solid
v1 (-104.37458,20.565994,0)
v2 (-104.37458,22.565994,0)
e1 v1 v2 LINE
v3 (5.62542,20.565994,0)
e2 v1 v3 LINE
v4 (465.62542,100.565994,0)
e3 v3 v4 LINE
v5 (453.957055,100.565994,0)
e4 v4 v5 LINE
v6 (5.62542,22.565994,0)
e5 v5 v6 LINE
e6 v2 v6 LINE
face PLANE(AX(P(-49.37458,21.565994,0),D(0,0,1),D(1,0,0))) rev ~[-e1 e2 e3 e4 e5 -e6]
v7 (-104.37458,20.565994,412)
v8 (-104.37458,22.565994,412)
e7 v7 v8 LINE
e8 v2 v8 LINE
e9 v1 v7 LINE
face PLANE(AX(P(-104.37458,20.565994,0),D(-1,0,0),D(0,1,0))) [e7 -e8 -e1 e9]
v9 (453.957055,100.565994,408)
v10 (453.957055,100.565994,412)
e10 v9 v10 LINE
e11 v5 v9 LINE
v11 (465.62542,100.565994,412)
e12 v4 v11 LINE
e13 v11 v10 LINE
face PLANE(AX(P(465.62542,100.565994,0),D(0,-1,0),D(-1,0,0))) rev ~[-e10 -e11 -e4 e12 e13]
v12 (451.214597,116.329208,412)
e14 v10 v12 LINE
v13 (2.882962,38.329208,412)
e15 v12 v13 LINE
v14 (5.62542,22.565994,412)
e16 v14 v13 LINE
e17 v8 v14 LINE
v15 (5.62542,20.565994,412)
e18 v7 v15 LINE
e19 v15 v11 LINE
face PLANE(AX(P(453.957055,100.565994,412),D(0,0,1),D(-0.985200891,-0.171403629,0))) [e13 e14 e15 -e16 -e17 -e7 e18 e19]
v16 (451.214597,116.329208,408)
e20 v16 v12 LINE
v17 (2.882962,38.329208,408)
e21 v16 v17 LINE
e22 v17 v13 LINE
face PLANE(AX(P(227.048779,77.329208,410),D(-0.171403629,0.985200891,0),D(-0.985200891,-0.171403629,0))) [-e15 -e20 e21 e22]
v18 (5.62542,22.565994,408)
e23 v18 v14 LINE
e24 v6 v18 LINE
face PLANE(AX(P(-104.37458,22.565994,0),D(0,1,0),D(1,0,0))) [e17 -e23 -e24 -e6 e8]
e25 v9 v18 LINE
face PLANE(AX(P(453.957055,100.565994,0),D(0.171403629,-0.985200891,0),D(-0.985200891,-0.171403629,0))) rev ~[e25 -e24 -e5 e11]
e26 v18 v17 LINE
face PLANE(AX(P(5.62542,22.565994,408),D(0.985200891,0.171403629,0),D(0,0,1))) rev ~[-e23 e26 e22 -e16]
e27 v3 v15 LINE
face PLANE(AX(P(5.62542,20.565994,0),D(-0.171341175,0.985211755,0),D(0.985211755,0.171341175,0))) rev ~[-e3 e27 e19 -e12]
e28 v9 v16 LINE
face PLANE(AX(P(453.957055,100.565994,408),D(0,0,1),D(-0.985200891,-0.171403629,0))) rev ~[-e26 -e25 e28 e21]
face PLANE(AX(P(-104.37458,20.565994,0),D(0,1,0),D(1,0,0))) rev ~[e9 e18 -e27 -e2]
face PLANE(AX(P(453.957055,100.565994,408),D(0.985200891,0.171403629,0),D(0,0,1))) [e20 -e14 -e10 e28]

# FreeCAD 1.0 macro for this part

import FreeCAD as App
import Part
import Sketcher
Q = App.Units.Quantity


def add_polygon(sketch, points):
    """Adds a closed chain of lines whose ends are joined by coincident constraints."""
    first, n = sketch.GeometryCount, len(points)
    for a, b in zip(points, points[1:] + points[:1]):
        sketch.addGeometry(Part.LineSegment(App.Vector(*a, 0), App.Vector(*b, 0)), False)
    for i in range(n):
        sketch.addConstraint(Sketcher.Constraint("Coincident", first + i, 2, first + (i + 1) % n, 1))

doc = App.newDocument("Part")
body = doc.addObject("PartDesign::Body", "Body")

# Sketch on XY plane
sketch1 = body.newObject("Sketcher::SketchObject", "Sketch")
sketch1.AttachmentSupport = (doc.getObject("XY_Plane"), [""])
sketch1.MapMode = "FlatFace"
add_polygon(sketch1, [(-104.37458, 22.565994), (-104.37458, 20.565994), (5.62542, 20.565994), (465.62542, 100.565994), (453.957055, 100.565994), (5.62542, 22.565994)])  # lines 0-5
sketch1.addConstraint(Sketcher.Constraint("Vertical", 0))
sketch1.addConstraint(Sketcher.Constraint("Horizontal", 1))
sketch1.addConstraint(Sketcher.Constraint("Horizontal", 3))
sketch1.addConstraint(Sketcher.Constraint("Horizontal", 5))
sketch1.addConstraint(Sketcher.Constraint("Vertical", 1, 2, 4, 2))
sketch1.addConstraint(Sketcher.Constraint("DistanceX", 1, 1, 1, 2, Q("110 mm")))
sketch1.addConstraint(Sketcher.Constraint("DistanceY", 0, 2, 0, 1, Q("2 mm")))
sketch1.addConstraint(Sketcher.Constraint("DistanceX", 1, 2, 2, 2, Q("460 mm")))
sketch1.addConstraint(Sketcher.Constraint("DistanceY", 1, 2, 2, 2, Q("80 mm")))
sketch1.addConstraint(Sketcher.Constraint("Distance", 4, Q("455.06621 mm")))
sketch1.addConstraint(Sketcher.Constraint("DistanceX", 0, 2, -1, 1, Q("104.37458 mm")))
sketch1.addConstraint(Sketcher.Constraint("DistanceY", -1, 1, 0, 2, Q("20.565994 mm")))
pad1 = body.newObject("PartDesign::Pad", "Pad")
pad1.Profile = sketch1
pad1.Length = 412

# Sketch on an angled plane
sketch2 = body.newObject("Sketcher::SketchObject", "Sketch001")
sketch2.Placement = App.Placement(App.Vector(-3.645382, 20.953075, 0), App.Rotation(App.Vector(-0.985200891, -0.171403629, 0), App.Vector(0, 0, 1), App.Vector(-0.171403629, 0.985200891, 0), "ZXY"))
add_polygon(sketch2, [(-464.476272, 412), (-464.476272, 408), (-9.410062, 408), (-9.410062, 412)])  # lines 0-3
sketch2.addConstraint(Sketcher.Constraint("Vertical", 0))
sketch2.addConstraint(Sketcher.Constraint("Horizontal", 1))
sketch2.addConstraint(Sketcher.Constraint("Vertical", 2))
sketch2.addConstraint(Sketcher.Constraint("Horizontal", 3))
sketch2.addConstraint(Sketcher.Constraint("DistanceY", 0, 2, 0, 1, Q("4 mm")))
sketch2.addConstraint(Sketcher.Constraint("DistanceY", -1, 1, 0, 2, Q("408 mm")))
sketch2.addConstraint(Sketcher.Constraint("DistanceX", 1, 1, 1, 2, Q("455.06621 mm")))
sketch2.addConstraint(Sketcher.Constraint("DistanceX", 0, 2, -1, 1, Q("464.476272 mm")))
pad2 = body.newObject("PartDesign::Pad", "Pad001")
pad2.Profile = sketch2
pad2.Length = 16

doc.recompute()
